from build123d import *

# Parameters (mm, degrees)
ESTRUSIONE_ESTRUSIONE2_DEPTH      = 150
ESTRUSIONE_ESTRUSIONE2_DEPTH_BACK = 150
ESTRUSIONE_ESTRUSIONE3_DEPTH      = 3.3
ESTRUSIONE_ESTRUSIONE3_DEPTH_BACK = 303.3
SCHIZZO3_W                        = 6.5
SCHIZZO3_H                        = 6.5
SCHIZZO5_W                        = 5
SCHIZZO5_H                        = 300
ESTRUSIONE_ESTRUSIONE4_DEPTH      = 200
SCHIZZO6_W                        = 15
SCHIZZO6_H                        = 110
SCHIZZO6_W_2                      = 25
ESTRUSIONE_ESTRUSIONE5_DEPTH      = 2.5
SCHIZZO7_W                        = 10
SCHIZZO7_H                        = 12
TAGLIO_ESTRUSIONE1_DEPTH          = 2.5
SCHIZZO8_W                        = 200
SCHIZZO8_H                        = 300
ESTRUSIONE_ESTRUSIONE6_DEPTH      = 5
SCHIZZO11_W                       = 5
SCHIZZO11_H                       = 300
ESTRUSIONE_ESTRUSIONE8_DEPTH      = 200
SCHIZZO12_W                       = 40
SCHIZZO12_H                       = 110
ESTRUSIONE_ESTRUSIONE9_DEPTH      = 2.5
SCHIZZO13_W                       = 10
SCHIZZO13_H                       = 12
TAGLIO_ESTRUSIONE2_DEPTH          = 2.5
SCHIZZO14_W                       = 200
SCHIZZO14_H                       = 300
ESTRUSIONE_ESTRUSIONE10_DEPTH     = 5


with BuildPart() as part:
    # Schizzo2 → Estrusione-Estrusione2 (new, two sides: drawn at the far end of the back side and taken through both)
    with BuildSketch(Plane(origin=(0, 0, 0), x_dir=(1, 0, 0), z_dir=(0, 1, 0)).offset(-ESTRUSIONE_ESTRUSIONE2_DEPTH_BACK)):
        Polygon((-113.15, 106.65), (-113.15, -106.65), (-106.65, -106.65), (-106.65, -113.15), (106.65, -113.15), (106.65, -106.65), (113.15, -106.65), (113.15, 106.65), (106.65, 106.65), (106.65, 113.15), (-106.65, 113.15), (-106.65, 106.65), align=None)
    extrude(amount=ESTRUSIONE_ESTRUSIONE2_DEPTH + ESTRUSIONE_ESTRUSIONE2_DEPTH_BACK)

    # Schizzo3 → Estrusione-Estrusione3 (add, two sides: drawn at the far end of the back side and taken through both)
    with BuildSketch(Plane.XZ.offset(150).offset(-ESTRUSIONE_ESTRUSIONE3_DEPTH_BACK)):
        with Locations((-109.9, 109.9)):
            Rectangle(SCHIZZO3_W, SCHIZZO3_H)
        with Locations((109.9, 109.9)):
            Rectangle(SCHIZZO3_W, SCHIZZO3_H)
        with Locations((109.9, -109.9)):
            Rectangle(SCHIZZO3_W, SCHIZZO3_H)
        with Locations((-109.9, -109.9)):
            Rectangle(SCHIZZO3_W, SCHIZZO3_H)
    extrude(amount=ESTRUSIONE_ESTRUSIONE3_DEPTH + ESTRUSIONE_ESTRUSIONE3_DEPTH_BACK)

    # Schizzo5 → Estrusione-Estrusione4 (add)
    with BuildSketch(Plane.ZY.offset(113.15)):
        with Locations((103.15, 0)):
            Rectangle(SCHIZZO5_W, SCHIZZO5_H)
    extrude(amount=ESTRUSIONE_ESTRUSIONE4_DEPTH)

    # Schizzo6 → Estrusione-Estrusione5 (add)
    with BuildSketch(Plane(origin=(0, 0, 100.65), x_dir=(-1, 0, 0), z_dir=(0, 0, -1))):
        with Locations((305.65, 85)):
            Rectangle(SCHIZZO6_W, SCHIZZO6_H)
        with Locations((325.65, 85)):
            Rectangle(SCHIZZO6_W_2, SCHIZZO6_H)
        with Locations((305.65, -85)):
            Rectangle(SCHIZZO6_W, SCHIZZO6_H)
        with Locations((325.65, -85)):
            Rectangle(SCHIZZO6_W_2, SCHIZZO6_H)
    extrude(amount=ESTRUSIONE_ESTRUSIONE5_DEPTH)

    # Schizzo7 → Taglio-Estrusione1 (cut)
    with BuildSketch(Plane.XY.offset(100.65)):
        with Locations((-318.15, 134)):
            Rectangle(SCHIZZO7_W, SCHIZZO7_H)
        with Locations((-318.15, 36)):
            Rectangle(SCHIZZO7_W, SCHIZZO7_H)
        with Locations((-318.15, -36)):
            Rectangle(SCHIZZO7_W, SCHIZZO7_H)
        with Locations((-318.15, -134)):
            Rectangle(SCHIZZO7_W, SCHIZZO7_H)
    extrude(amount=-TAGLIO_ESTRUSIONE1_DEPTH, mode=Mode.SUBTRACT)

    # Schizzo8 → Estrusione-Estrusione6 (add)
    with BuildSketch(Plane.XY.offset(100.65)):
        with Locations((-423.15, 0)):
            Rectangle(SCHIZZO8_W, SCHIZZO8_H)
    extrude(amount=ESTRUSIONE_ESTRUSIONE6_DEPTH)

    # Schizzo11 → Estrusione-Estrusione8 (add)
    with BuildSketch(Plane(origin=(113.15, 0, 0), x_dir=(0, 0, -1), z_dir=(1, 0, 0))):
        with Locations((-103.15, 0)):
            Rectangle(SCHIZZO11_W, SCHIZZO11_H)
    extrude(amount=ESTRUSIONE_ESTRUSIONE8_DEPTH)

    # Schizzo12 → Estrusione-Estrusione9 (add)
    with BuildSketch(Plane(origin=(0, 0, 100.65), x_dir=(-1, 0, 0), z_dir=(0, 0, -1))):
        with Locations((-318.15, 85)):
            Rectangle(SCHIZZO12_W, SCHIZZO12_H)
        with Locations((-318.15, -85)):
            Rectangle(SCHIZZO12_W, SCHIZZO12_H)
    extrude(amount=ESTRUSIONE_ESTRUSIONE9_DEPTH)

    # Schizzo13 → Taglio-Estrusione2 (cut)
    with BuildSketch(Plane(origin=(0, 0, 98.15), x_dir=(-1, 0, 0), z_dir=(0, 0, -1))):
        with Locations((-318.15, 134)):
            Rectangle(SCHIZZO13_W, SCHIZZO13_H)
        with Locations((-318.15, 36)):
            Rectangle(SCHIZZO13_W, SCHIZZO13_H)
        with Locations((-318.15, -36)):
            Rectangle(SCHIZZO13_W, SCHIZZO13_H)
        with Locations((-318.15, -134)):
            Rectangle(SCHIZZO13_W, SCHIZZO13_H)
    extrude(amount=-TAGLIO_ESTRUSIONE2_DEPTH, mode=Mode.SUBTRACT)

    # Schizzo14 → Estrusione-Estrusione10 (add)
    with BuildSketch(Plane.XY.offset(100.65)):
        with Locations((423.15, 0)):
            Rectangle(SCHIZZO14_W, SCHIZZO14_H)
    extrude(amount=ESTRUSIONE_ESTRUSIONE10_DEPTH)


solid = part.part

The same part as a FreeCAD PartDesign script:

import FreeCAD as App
import Part
import Sketcher

V = App.Vector
Q = App.Units.Quantity

doc = App.newDocument("Part")
params = doc.addObject("Spreadsheet::Sheet", "Params")
for row, (alias, value) in enumerate([
    ("sketch1_width", "6.5 mm"),
    ("sketch1_width2", "213.3 mm"),
    ("pad1_length", "150 mm"),
    ("pad1_length2", "150 mm"),
    ("sketch2_width", "6.5 mm"),
    ("pad2_length", "3.3 mm"),
    ("pad2_length2", "303.3 mm"),
    ("sketch3_width", "300 mm"),
    ("sketch3_height", "5 mm"),
    ("pad3_length", "200 mm"),
    ("sketch4_width", "40 mm"),
    ("sketch4_height", "110 mm"),
    ("pad4_length", "2.5 mm"),
    ("sketch5_width", "10 mm"),
    ("sketch5_height", "12 mm"),
    ("pocket1_length", "2.5 mm"),
    ("sketch6_width", "200 mm"),
    ("sketch6_height", "300 mm"),
    ("pad5_length", "5 mm"),
    ("sketch7_width", "300 mm"),
    ("sketch7_height", "5 mm"),
    ("pad6_length", "200 mm"),
    ("sketch8_width", "40 mm"),
    ("sketch8_height", "110 mm"),
    ("pad7_length", "2.5 mm"),
    ("sketch9_width", "10 mm"),
    ("sketch9_height", "12 mm"),
    ("pocket2_length", "2.5 mm"),
    ("sketch10_width", "200 mm"),
    ("sketch10_height", "300 mm"),
    ("pad8_length", "5 mm"),
], start=1):
    params.set(f"A{row}", alias)
    params.set(f"B{row}", "=" + value)
    params.setAlias(f"B{row}", alias)

body = doc.addObject("PartDesign::Body", "Body")

sketch1 = doc.addObject("Sketcher::SketchObject", "Sketch")
body.addObject(sketch1)
sketch1.AttachmentSupport = (doc.XZ_Plane, [""])
sketch1.MapMode = "FlatFace"
sketch1.addGeometry([
    Part.LineSegment(V(-113.15, -106.65, 0), V(-113.15, 106.65, 0)),
    Part.LineSegment(V(-113.15, 106.65, 0), V(-106.65, 106.65, 0)),
    Part.LineSegment(V(-106.65, 106.65, 0), V(-106.65, 113.15, 0)),
    Part.LineSegment(V(-106.65, 113.15, 0), V(106.65, 113.15, 0)),
    Part.LineSegment(V(106.65, 113.15, 0), V(106.65, 106.65, 0)),
    Part.LineSegment(V(106.65, 106.65, 0), V(113.15, 106.65, 0)),
    Part.LineSegment(V(113.15, 106.65, 0), V(113.15, -106.65, 0)),
    Part.LineSegment(V(113.15, -106.65, 0), V(106.65, -106.65, 0)),
    Part.LineSegment(V(106.65, -106.65, 0), V(106.65, -113.15, 0)),
    Part.LineSegment(V(106.65, -113.15, 0), V(-106.65, -113.15, 0)),
    Part.LineSegment(V(-106.65, -113.15, 0), V(-106.65, -106.65, 0)),
    Part.LineSegment(V(-106.65, -106.65, 0), V(-113.15, -106.65, 0)),
], False)
sketch1.addConstraint([
    Sketcher.Constraint("Coincident", 0, 2, 1, 1),
    Sketcher.Constraint("Coincident", 1, 2, 2, 1),
    Sketcher.Constraint("Coincident", 2, 2, 3, 1),
    Sketcher.Constraint("Coincident", 3, 2, 4, 1),
    Sketcher.Constraint("Coincident", 4, 2, 5, 1),
    Sketcher.Constraint("Coincident", 5, 2, 6, 1),
    Sketcher.Constraint("Coincident", 6, 2, 7, 1),
    Sketcher.Constraint("Coincident", 7, 2, 8, 1),
    Sketcher.Constraint("Coincident", 8, 2, 9, 1),
    Sketcher.Constraint("Coincident", 9, 2, 10, 1),
    Sketcher.Constraint("Coincident", 10, 2, 11, 1),
    Sketcher.Constraint("Coincident", 11, 2, 0, 1),
    Sketcher.Constraint("Vertical", 0),
    Sketcher.Constraint("Horizontal", 1),
    Sketcher.Constraint("Vertical", 2),
    Sketcher.Constraint("Horizontal", 3),
    Sketcher.Constraint("Vertical", 4),
    Sketcher.Constraint("Horizontal", 5),
    Sketcher.Constraint("Vertical", 6),
    Sketcher.Constraint("Horizontal", 7),
    Sketcher.Constraint("Vertical", 8),
    Sketcher.Constraint("Horizontal", 9),
    Sketcher.Constraint("Vertical", 10),
    Sketcher.Constraint("Horizontal", 11),
    Sketcher.Constraint("Symmetric", 0, 2, 6, 2, -1, 1),
    Sketcher.Constraint("Symmetric", 2, 2, 8, 2, -1, 1),
    Sketcher.Constraint("Symmetric", 4, 2, 10, 2, -1, 1),
    Sketcher.Constraint("Symmetric", 1, 2, 4, 2, -2),
    Sketcher.Constraint("Equal", 9, 0),
    Sketcher.Constraint("Equal", 11, 2),
    Sketcher.Constraint("DistanceX", 1, 1, 1, 2, Q("6.5 mm")),
    Sketcher.Constraint("DistanceX", 3, 1, 3, 2, Q("213.3 mm")),
])
sketch1.setExpression("Constraints[30]", "Params.sketch1_width")
sketch1.setExpression("Constraints[31]", "Params.sketch1_width2")
pad1 = doc.addObject("PartDesign::Pad", "Pad")
body.addObject(pad1)
pad1.Profile = sketch1
pad1.Type = "TwoLengths"
pad1.setExpression("Length", "Params.pad1_length")
pad1.setExpression("Length2", "Params.pad1_length2")
pad1.Reversed = True

sketch2 = doc.addObject("Sketcher::SketchObject", "Sketch001")
body.addObject(sketch2)
sketch2.AttachmentSupport = (doc.XZ_Plane, [""])
sketch2.MapMode = "FlatFace"
sketch2.AttachmentOffset = App.Placement(V(0, 0, 150), App.Rotation())
sketch2.addGeometry([
    Part.LineSegment(V(-113.15, 113.15, 0), V(-113.15, 106.65, 0)),
    Part.LineSegment(V(-113.15, 106.65, 0), V(-106.65, 106.65, 0)),
    Part.LineSegment(V(-106.65, 106.65, 0), V(-106.65, 113.15, 0)),
    Part.LineSegment(V(-106.65, 113.15, 0), V(-113.15, 113.15, 0)),
    Part.LineSegment(V(106.65, 113.15, 0), V(106.65, 106.65, 0)),
    Part.LineSegment(V(106.65, 106.65, 0), V(113.15, 106.65, 0)),
    Part.LineSegment(V(113.15, 106.65, 0), V(113.15, 113.15, 0)),
    Part.LineSegment(V(113.15, 113.15, 0), V(106.65, 113.15, 0)),
    Part.LineSegment(V(106.65, -106.65, 0), V(106.65, -113.15, 0)),
    Part.LineSegment(V(106.65, -113.15, 0), V(113.15, -113.15, 0)),
    Part.LineSegment(V(113.15, -113.15, 0), V(113.15, -106.65, 0)),
    Part.LineSegment(V(113.15, -106.65, 0), V(106.65, -106.65, 0)),
    Part.LineSegment(V(-113.15, -106.65, 0), V(-113.15, -113.15, 0)),
    Part.LineSegment(V(-113.15, -113.15, 0), V(-106.65, -113.15, 0)),
    Part.LineSegment(V(-106.65, -113.15, 0), V(-106.65, -106.65, 0)),
    Part.LineSegment(V(-106.65, -106.65, 0), V(-113.15, -106.65, 0)),
], False)
sketch2.addConstraint([
    Sketcher.Constraint("Coincident", 0, 2, 1, 1),
    Sketcher.Constraint("Coincident", 1, 2, 2, 1),
    Sketcher.Constraint("Coincident", 2, 2, 3, 1),
    Sketcher.Constraint("Coincident", 3, 2, 0, 1),
    Sketcher.Constraint("Coincident", 4, 2, 5, 1),
    Sketcher.Constraint("Coincident", 5, 2, 6, 1),
    Sketcher.Constraint("Coincident", 6, 2, 7, 1),
    Sketcher.Constraint("Coincident", 7, 2, 4, 1),
    Sketcher.Constraint("Coincident", 8, 2, 9, 1),
    Sketcher.Constraint("Coincident", 9, 2, 10, 1),
    Sketcher.Constraint("Coincident", 10, 2, 11, 1),
    Sketcher.Constraint("Coincident", 11, 2, 8, 1),
    Sketcher.Constraint("Coincident", 12, 2, 13, 1),
    Sketcher.Constraint("Coincident", 13, 2, 14, 1),
    Sketcher.Constraint("Coincident", 14, 2, 15, 1),
    Sketcher.Constraint("Coincident", 15, 2, 12, 1),
    Sketcher.Constraint("Vertical", 0),
    Sketcher.Constraint("Horizontal", 1),
    Sketcher.Constraint("Vertical", 2),
    Sketcher.Constraint("Horizontal", 3),
    Sketcher.Constraint("Vertical", 4),
    Sketcher.Constraint("Horizontal", 5),
    Sketcher.Constraint("Vertical", 6),
    Sketcher.Constraint("Horizontal", 7),
    Sketcher.Constraint("Vertical", 8),
    Sketcher.Constraint("Horizontal", 9),
    Sketcher.Constraint("Vertical", 10),
    Sketcher.Constraint("Horizontal", 11),
    Sketcher.Constraint("Vertical", 12),
    Sketcher.Constraint("Horizontal", 13),
    Sketcher.Constraint("Vertical", 14),
    Sketcher.Constraint("Horizontal", 15),
    Sketcher.Constraint("Symmetric", 2, 2, 8, 2, -1, 1),
    Sketcher.Constraint("Symmetric", 0, 2, 10, 2, -1, 1),
    Sketcher.Constraint("Symmetric", 6, 2, 12, 2, -1, 1),
    Sketcher.Constraint("Symmetric", 4, 2, 14, 2, -1, 1),
    Sketcher.Constraint("Symmetric", 1, 2, 4, 2, -2),
    Sketcher.Constraint("Symmetric", 3, 2, 6, 2, -2),
    Sketcher.Constraint("Equal", 15, 0),
    Sketcher.Constraint("DistanceX", 1, 1, 1, 2, Q("6.5 mm")),
    Sketcher.Constraint("DistanceX", 1, 2, 4, 2, Q("213.3 mm")),
    Sketcher.Constraint("DistanceY", 8, 2, 4, 2, Q("219.8 mm")),
])
sketch2.setExpression("Constraints[39]", "Params.sketch2_width")
pad2 = doc.addObject("PartDesign::Pad", "Pad001")
body.addObject(pad2)
pad2.Profile = sketch2
pad2.Type = "TwoLengths"
pad2.setExpression("Length", "Params.pad2_length")
pad2.setExpression("Length2", "Params.pad2_length2")

sketch3 = doc.addObject("Sketcher::SketchObject", "Sketch002")
body.addObject(sketch3)
sketch3.AttachmentSupport = (doc.YZ_Plane, [""])
sketch3.MapMode = "FlatFace"
sketch3.AttachmentOffset = App.Placement(V(0, 0, -113.15), App.Rotation())
sketch3.addGeometry([
    Part.LineSegment(V(150, 100.65, 0), V(-150, 100.65, 0)),
    Part.LineSegment(V(-150, 100.65, 0), V(-150, 105.65, 0)),
    Part.LineSegment(V(-150, 105.65, 0), V(150, 105.65, 0)),
    Part.LineSegment(V(150, 105.65, 0), V(150, 100.65, 0)),
], False)
sketch3.addConstraint([
    Sketcher.Constraint("Coincident", 0, 2, 1, 1),
    Sketcher.Constraint("Coincident", 1, 2, 2, 1),
    Sketcher.Constraint("Coincident", 2, 2, 3, 1),
    Sketcher.Constraint("Coincident", 3, 2, 0, 1),
    Sketcher.Constraint("Horizontal", 0),
    Sketcher.Constraint("Vertical", 1),
    Sketcher.Constraint("Horizontal", 2),
    Sketcher.Constraint("Vertical", 3),
    Sketcher.Constraint("DistanceX", 0, 2, 0, 1, Q("300 mm")),
    Sketcher.Constraint("DistanceY", 1, 1, 1, 2, Q("5 mm")),
    Sketcher.Constraint("DistanceX", 0, 2, -1, 1, Q("150 mm")),
    Sketcher.Constraint("DistanceY", -1, 1, 0, 2, Q("100.65 mm")),
])
sketch3.setExpression("Constraints[8]", "Params.sketch3_width")
sketch3.setExpression("Constraints[9]", "Params.sketch3_height")
pad3 = doc.addObject("PartDesign::Pad", "Pad002")
body.addObject(pad3)
pad3.Profile = sketch3
pad3.setExpression("Length", "Params.pad3_length")
pad3.Reversed = True

sketch4 = doc.addObject("Sketcher::SketchObject", "Sketch003")
body.addObject(sketch4)
sketch4.AttachmentSupport = (doc.XY_Plane, [""])
sketch4.MapMode = "FlatFace"
sketch4.AttachmentOffset = App.Placement(V(0, 0, 100.65), App.Rotation())
sketch4.addGeometry([
    Part.LineSegment(V(-298.15, 140, 0), V(-298.15, 30, 0)),
    Part.LineSegment(V(-298.15, 30, 0), V(-338.15, 30, 0)),
    Part.LineSegment(V(-338.15, 30, 0), V(-338.15, 140, 0)),
    Part.LineSegment(V(-338.15, 140, 0), V(-298.15, 140, 0)),
    Part.LineSegment(V(-298.15, -30, 0), V(-298.15, -140, 0)),
    Part.LineSegment(V(-298.15, -140, 0), V(-338.15, -140, 0)),
    Part.LineSegment(V(-338.15, -140, 0), V(-338.15, -30, 0)),
    Part.LineSegment(V(-338.15, -30, 0), V(-298.15, -30, 0)),
], False)
sketch4.addConstraint([
    Sketcher.Constraint("Coincident", 0, 2, 1, 1),
    Sketcher.Constraint("Coincident", 1, 2, 2, 1),
    Sketcher.Constraint("Coincident", 2, 2, 3, 1),
    Sketcher.Constraint("Coincident", 3, 2, 0, 1),
    Sketcher.Constraint("Coincident", 4, 2, 5, 1),
    Sketcher.Constraint("Coincident", 5, 2, 6, 1),
    Sketcher.Constraint("Coincident", 6, 2, 7, 1),
    Sketcher.Constraint("Coincident", 7, 2, 4, 1),
    Sketcher.Constraint("Vertical", 0),
    Sketcher.Constraint("Horizontal", 1),
    Sketcher.Constraint("Vertical", 2),
    Sketcher.Constraint("Horizontal", 3),
    Sketcher.Constraint("Vertical", 4),
    Sketcher.Constraint("Horizontal", 5),
    Sketcher.Constraint("Vertical", 6),
    Sketcher.Constraint("Horizontal", 7),
    Sketcher.Constraint("Symmetric", 3, 2, 4, 2, -1),
    Sketcher.Constraint("Symmetric", 1, 2, 6, 2, -1),
    Sketcher.Constraint("DistanceX", 1, 2, 1, 1, Q("40 mm")),
    Sketcher.Constraint("DistanceY", 0, 2, 0, 1, Q("110 mm")),
    Sketcher.Constraint("DistanceY", -1, 1, 0, 2, Q("30 mm")),
    Sketcher.Constraint("DistanceX", 0, 2, -1, 1, Q("298.15 mm")),
])
sketch4.setExpression("Constraints[18]", "Params.sketch4_width")
sketch4.setExpression("Constraints[19]", "Params.sketch4_height")
pad4 = doc.addObject("PartDesign::Pad", "Pad003")
body.addObject(pad4)
pad4.Profile = sketch4
pad4.setExpression("Length", "Params.pad4_length")
pad4.Reversed = True

sketch5 = doc.addObject("Sketcher::SketchObject", "Sketch004")
body.addObject(sketch5)
sketch5.AttachmentSupport = (doc.XY_Plane, [""])
sketch5.MapMode = "FlatFace"
sketch5.AttachmentOffset = App.Placement(V(0, 0, 100.65), App.Rotation())
sketch5.addGeometry([
    Part.LineSegment(V(-323.15, 140, 0), V(-323.15, 128, 0)),
    Part.LineSegment(V(-323.15, 128, 0), V(-313.15, 128, 0)),
    Part.LineSegment(V(-313.15, 128, 0), V(-313.15, 140, 0)),
    Part.LineSegment(V(-313.15, 140, 0), V(-323.15, 140, 0)),
    Part.LineSegment(V(-323.15, 42, 0), V(-323.15, 30, 0)),
    Part.LineSegment(V(-323.15, 30, 0), V(-313.15, 30, 0)),
    Part.LineSegment(V(-313.15, 30, 0), V(-313.15, 42, 0)),
    Part.LineSegment(V(-313.15, 42, 0), V(-323.15, 42, 0)),
    Part.LineSegment(V(-323.15, -30, 0), V(-323.15, -42, 0)),
    Part.LineSegment(V(-323.15, -42, 0), V(-313.15, -42, 0)),
    Part.LineSegment(V(-313.15, -42, 0), V(-313.15, -30, 0)),
    Part.LineSegment(V(-313.15, -30, 0), V(-323.15, -30, 0)),
    Part.LineSegment(V(-323.15, -128, 0), V(-323.15, -140, 0)),
    Part.LineSegment(V(-323.15, -140, 0), V(-313.15, -140, 0)),
    Part.LineSegment(V(-313.15, -140, 0), V(-313.15, -128, 0)),
    Part.LineSegment(V(-313.15, -128, 0), V(-323.15, -128, 0)),
], False)
sketch5.addConstraint([
    Sketcher.Constraint("Coincident", 0, 2, 1, 1),
    Sketcher.Constraint("Coincident", 1, 2, 2, 1),
    Sketcher.Constraint("Coincident", 2, 2, 3, 1),
    Sketcher.Constraint("Coincident", 3, 2, 0, 1),
    Sketcher.Constraint("Coincident", 4, 2, 5, 1),
    Sketcher.Constraint("Coincident", 5, 2, 6, 1),
    Sketcher.Constraint("Coincident", 6, 2, 7, 1),
    Sketcher.Constraint("Coincident", 7, 2, 4, 1),
    Sketcher.Constraint("Coincident", 8, 2, 9, 1),
    Sketcher.Constraint("Coincident", 9, 2, 10, 1),
    Sketcher.Constraint("Coincident", 10, 2, 11, 1),
    Sketcher.Constraint("Coincident", 11, 2, 8, 1),
    Sketcher.Constraint("Coincident", 12, 2, 13, 1),
    Sketcher.Constraint("Coincident", 13, 2, 14, 1),
    Sketcher.Constraint("Coincident", 14, 2, 15, 1),
    Sketcher.Constraint("Coincident", 15, 2, 12, 1),
    Sketcher.Constraint("Vertical", 0),
    Sketcher.Constraint("Horizontal", 1),
    Sketcher.Constraint("Vertical", 2),
    Sketcher.Constraint("Horizontal", 3),
    Sketcher.Constraint("Vertical", 4),
    Sketcher.Constraint("Horizontal", 5),
    Sketcher.Constraint("Vertical", 6),
    Sketcher.Constraint("Horizontal", 7),
    Sketcher.Constraint("Vertical", 8),
    Sketcher.Constraint("Horizontal", 9),
    Sketcher.Constraint("Vertical", 10),
    Sketcher.Constraint("Horizontal", 11),
    Sketcher.Constraint("Vertical", 12),
    Sketcher.Constraint("Horizontal", 13),
    Sketcher.Constraint("Vertical", 14),
    Sketcher.Constraint("Horizontal", 15),
    Sketcher.Constraint("Symmetric", 7, 2, 8, 2, -1),
    Sketcher.Constraint("Symmetric", 5, 2, 10, 2, -1),
    Sketcher.Constraint("Symmetric", 3, 2, 12, 2, -1),
    Sketcher.Constraint("Symmetric", 1, 2, 14, 2, -1),
    Sketcher.Constraint("Vertical", 3, 2, 4, 2),
    Sketcher.Constraint("Vertical", 2, 2, 5, 2),
    Sketcher.Constraint("Equal", 2, 4),
    Sketcher.Constraint("DistanceX", 1, 1, 1, 2, Q("10 mm")),
    Sketcher.Constraint("DistanceY", 0, 2, 0, 1, Q("12 mm")),
    Sketcher.Constraint("DistanceY", -1, 1, 0, 2, Q("128 mm")),
    Sketcher.Constraint("DistanceY", -1, 1, 4, 2, Q("30 mm")),
    Sketcher.Constraint("DistanceX", 0, 2, -1, 1, Q("323.15 mm")),
])
sketch5.setExpression("Constraints[39]", "Params.sketch5_width")
sketch5.setExpression("Constraints[40]", "Params.sketch5_height")
pocket1 = doc.addObject("PartDesign::Pocket", "Pocket")
body.addObject(pocket1)
pocket1.Profile = sketch5
pocket1.setExpression("Length", "Params.pocket1_length")

sketch6 = doc.addObject("Sketcher::SketchObject", "Sketch005")
body.addObject(sketch6)
sketch6.AttachmentSupport = (doc.XY_Plane, [""])
sketch6.MapMode = "FlatFace"
sketch6.AttachmentOffset = App.Placement(V(0, 0, 100.65), App.Rotation())
sketch6.addGeometry([
    Part.LineSegment(V(-523.15, 150, 0), V(-523.15, -150, 0)),
    Part.LineSegment(V(-523.15, -150, 0), V(-323.15, -150, 0)),
    Part.LineSegment(V(-323.15, -150, 0), V(-323.15, 150, 0)),
    Part.LineSegment(V(-323.15, 150, 0), V(-523.15, 150, 0)),
], False)
sketch6.addConstraint([
    Sketcher.Constraint("Coincident", 0, 2, 1, 1),
    Sketcher.Constraint("Coincident", 1, 2, 2, 1),
    Sketcher.Constraint("Coincident", 2, 2, 3, 1),
    Sketcher.Constraint("Coincident", 3, 2, 0, 1),
    Sketcher.Constraint("Vertical", 0),
    Sketcher.Constraint("Horizontal", 1),
    Sketcher.Constraint("Vertical", 2),
    Sketcher.Constraint("Horizontal", 3),
    Sketcher.Constraint("DistanceX", 1, 1, 1, 2, Q("200 mm")),
    Sketcher.Constraint("DistanceY", 0, 2, 0, 1, Q("300 mm")),
    Sketcher.Constraint("DistanceY", 0, 2, -1, 1, Q("150 mm")),
    Sketcher.Constraint("DistanceX", 0, 2, -1, 1, Q("523.15 mm")),
])
sketch6.setExpression("Constraints[8]", "Params.sketch6_width")
sketch6.setExpression("Constraints[9]", "Params.sketch6_height")
pad5 = doc.addObject("PartDesign::Pad", "Pad004")
body.addObject(pad5)
pad5.Profile = sketch6
pad5.setExpression("Length", "Params.pad5_length")

sketch7 = doc.addObject("Sketcher::SketchObject", "Sketch006")
body.addObject(sketch7)
sketch7.AttachmentSupport = (doc.YZ_Plane, [""])
sketch7.MapMode = "FlatFace"
sketch7.AttachmentOffset = App.Placement(V(0, 0, 113.15), App.Rotation())
sketch7.addGeometry([
    Part.LineSegment(V(150, 105.65, 0), V(-150, 105.65, 0)),
    Part.LineSegment(V(-150, 105.65, 0), V(-150, 100.65, 0)),
    Part.LineSegment(V(-150, 100.65, 0), V(150, 100.65, 0)),
    Part.LineSegment(V(150, 100.65, 0), V(150, 105.65, 0)),
], False)
sketch7.addConstraint([
    Sketcher.Constraint("Coincident", 0, 2, 1, 1),
    Sketcher.Constraint("Coincident", 1, 2, 2, 1),
    Sketcher.Constraint("Coincident", 2, 2, 3, 1),
    Sketcher.Constraint("Coincident", 3, 2, 0, 1),
    Sketcher.Constraint("Horizontal", 0),
    Sketcher.Constraint("Vertical", 1),
    Sketcher.Constraint("Horizontal", 2),
    Sketcher.Constraint("Vertical", 3),
    Sketcher.Constraint("DistanceX", 0, 2, 0, 1, Q("300 mm")),
    Sketcher.Constraint("DistanceY", 1, 2, 1, 1, Q("5 mm")),
    Sketcher.Constraint("DistanceX", 0, 2, -1, 1, Q("150 mm")),
    Sketcher.Constraint("DistanceY", -1, 1, 0, 2, Q("105.65 mm")),
])
sketch7.setExpression("Constraints[8]", "Params.sketch7_width")
sketch7.setExpression("Constraints[9]", "Params.sketch7_height")
pad6 = doc.addObject("PartDesign::Pad", "Pad005")
body.addObject(pad6)
pad6.Profile = sketch7
pad6.setExpression("Length", "Params.pad6_length")

sketch8 = doc.addObject("Sketcher::SketchObject", "Sketch007")
body.addObject(sketch8)
sketch8.AttachmentSupport = (doc.XY_Plane, [""])
sketch8.MapMode = "FlatFace"
sketch8.AttachmentOffset = App.Placement(V(0, 0, 100.65), App.Rotation())
sketch8.addGeometry([
    Part.LineSegment(V(338.15, 140, 0), V(338.15, 30, 0)),
    Part.LineSegment(V(338.15, 30, 0), V(298.15, 30, 0)),
    Part.LineSegment(V(298.15, 30, 0), V(298.15, 140, 0)),
    Part.LineSegment(V(298.15, 140, 0), V(338.15, 140, 0)),
    Part.LineSegment(V(338.15, -30, 0), V(338.15, -140, 0)),
    Part.LineSegment(V(338.15, -140, 0), V(298.15, -140, 0)),
    Part.LineSegment(V(298.15, -140, 0), V(298.15, -30, 0)),
    Part.LineSegment(V(298.15, -30, 0), V(338.15, -30, 0)),
], False)
sketch8.addConstraint([
    Sketcher.Constraint("Coincident", 0, 2, 1, 1),
    Sketcher.Constraint("Coincident", 1, 2, 2, 1),
    Sketcher.Constraint("Coincident", 2, 2, 3, 1),
    Sketcher.Constraint("Coincident", 3, 2, 0, 1),
    Sketcher.Constraint("Coincident", 4, 2, 5, 1),
    Sketcher.Constraint("Coincident", 5, 2, 6, 1),
    Sketcher.Constraint("Coincident", 6, 2, 7, 1),
    Sketcher.Constraint("Coincident", 7, 2, 4, 1),
    Sketcher.Constraint("Vertical", 0),
    Sketcher.Constraint("Horizontal", 1),
    Sketcher.Constraint("Vertical", 2),
    Sketcher.Constraint("Horizontal", 3),
    Sketcher.Constraint("Vertical", 4),
    Sketcher.Constraint("Horizontal", 5),
    Sketcher.Constraint("Vertical", 6),
    Sketcher.Constraint("Horizontal", 7),
    Sketcher.Constraint("Symmetric", 3, 2, 4, 2, -1),
    Sketcher.Constraint("Symmetric", 1, 2, 6, 2, -1),
    Sketcher.Constraint("DistanceX", 1, 2, 1, 1, Q("40 mm")),
    Sketcher.Constraint("DistanceY", 0, 2, 0, 1, Q("110 mm")),
    Sketcher.Constraint("DistanceY", -1, 1, 0, 2, Q("30 mm")),
    Sketcher.Constraint("DistanceX", -1, 1, 0, 2, Q("338.15 mm")),
])
sketch8.setExpression("Constraints[18]", "Params.sketch8_width")
sketch8.setExpression("Constraints[19]", "Params.sketch8_height")
pad7 = doc.addObject("PartDesign::Pad", "Pad006")
body.addObject(pad7)
pad7.Profile = sketch8
pad7.setExpression("Length", "Params.pad7_length")
pad7.Reversed = True

sketch9 = doc.addObject("Sketcher::SketchObject", "Sketch008")
body.addObject(sketch9)
sketch9.AttachmentSupport = (doc.XY_Plane, [""])
sketch9.MapMode = "FlatFace"
sketch9.AttachmentOffset = App.Placement(V(0, 0, 98.15), App.Rotation())
sketch9.addGeometry([
    Part.LineSegment(V(323.15, 140, 0), V(323.15, 128, 0)),
    Part.LineSegment(V(323.15, 128, 0), V(313.15, 128, 0)),
    Part.LineSegment(V(313.15, 128, 0), V(313.15, 140, 0)),
    Part.LineSegment(V(313.15, 140, 0), V(323.15, 140, 0)),
    Part.LineSegment(V(323.15, 42, 0), V(323.15, 30, 0)),
    Part.LineSegment(V(323.15, 30, 0), V(313.15, 30, 0)),
    Part.LineSegment(V(313.15, 30, 0), V(313.15, 42, 0)),
    Part.LineSegment(V(313.15, 42, 0), V(323.15, 42, 0)),
    Part.LineSegment(V(323.15, -30, 0), V(323.15, -42, 0)),
    Part.LineSegment(V(323.15, -42, 0), V(313.15, -42, 0)),
    Part.LineSegment(V(313.15, -42, 0), V(313.15, -30, 0)),
    Part.LineSegment(V(313.15, -30, 0), V(323.15, -30, 0)),
    Part.LineSegment(V(323.15, -128, 0), V(323.15, -140, 0)),
    Part.LineSegment(V(323.15, -140, 0), V(313.15, -140, 0)),
    Part.LineSegment(V(313.15, -140, 0), V(313.15, -128, 0)),
    Part.LineSegment(V(313.15, -128, 0), V(323.15, -128, 0)),
], False)
sketch9.addConstraint([
    Sketcher.Constraint("Coincident", 0, 2, 1, 1),
    Sketcher.Constraint("Coincident", 1, 2, 2, 1),
    Sketcher.Constraint("Coincident", 2, 2, 3, 1),
    Sketcher.Constraint("Coincident", 3, 2, 0, 1),
    Sketcher.Constraint("Coincident", 4, 2, 5, 1),
    Sketcher.Constraint("Coincident", 5, 2, 6, 1),
    Sketcher.Constraint("Coincident", 6, 2, 7, 1),
    Sketcher.Constraint("Coincident", 7, 2, 4, 1),
    Sketcher.Constraint("Coincident", 8, 2, 9, 1),
    Sketcher.Constraint("Coincident", 9, 2, 10, 1),
    Sketcher.Constraint("Coincident", 10, 2, 11, 1),
    Sketcher.Constraint("Coincident", 11, 2, 8, 1),
    Sketcher.Constraint("Coincident", 12, 2, 13, 1),
    Sketcher.Constraint("Coincident", 13, 2, 14, 1),
    Sketcher.Constraint("Coincident", 14, 2, 15, 1),
    Sketcher.Constraint("Coincident", 15, 2, 12, 1),
    Sketcher.Constraint("Vertical", 0),
    Sketcher.Constraint("Horizontal", 1),
    Sketcher.Constraint("Vertical", 2),
    Sketcher.Constraint("Horizontal", 3),
    Sketcher.Constraint("Vertical", 4),
    Sketcher.Constraint("Horizontal", 5),
    Sketcher.Constraint("Vertical", 6),
    Sketcher.Constraint("Horizontal", 7),
    Sketcher.Constraint("Vertical", 8),
    Sketcher.Constraint("Horizontal", 9),
    Sketcher.Constraint("Vertical", 10),
    Sketcher.Constraint("Horizontal", 11),
    Sketcher.Constraint("Vertical", 12),
    Sketcher.Constraint("Horizontal", 13),
    Sketcher.Constraint("Vertical", 14),
    Sketcher.Constraint("Horizontal", 15),
    Sketcher.Constraint("Symmetric", 7, 2, 8, 2, -1),
    Sketcher.Constraint("Symmetric", 5, 2, 10, 2, -1),
    Sketcher.Constraint("Symmetric", 3, 2, 12, 2, -1),
    Sketcher.Constraint("Symmetric", 1, 2, 14, 2, -1),
    Sketcher.Constraint("Vertical", 3, 2, 4, 2),
    Sketcher.Constraint("Vertical", 2, 2, 5, 2),
    Sketcher.Constraint("Equal", 2, 4),
    Sketcher.Constraint("DistanceX", 1, 2, 1, 1, Q("10 mm")),
    Sketcher.Constraint("DistanceY", 0, 2, 0, 1, Q("12 mm")),
    Sketcher.Constraint("DistanceY", -1, 1, 0, 2, Q("128 mm")),
    Sketcher.Constraint("DistanceY", -1, 1, 4, 2, Q("30 mm")),
    Sketcher.Constraint("DistanceX", -1, 1, 0, 2, Q("323.15 mm")),
])
sketch9.setExpression("Constraints[39]", "Params.sketch9_width")
sketch9.setExpression("Constraints[40]", "Params.sketch9_height")
pocket2 = doc.addObject("PartDesign::Pocket", "Pocket001")
body.addObject(pocket2)
pocket2.Profile = sketch9
pocket2.setExpression("Length", "Params.pocket2_length")
pocket2.Reversed = True

sketch10 = doc.addObject("Sketcher::SketchObject", "Sketch009")
body.addObject(sketch10)
sketch10.AttachmentSupport = (doc.XY_Plane, [""])
sketch10.MapMode = "FlatFace"
sketch10.AttachmentOffset = App.Placement(V(0, 0, 100.65), App.Rotation())
sketch10.addGeometry([
    Part.LineSegment(V(323.15, 150, 0), V(323.15, -150, 0)),
    Part.LineSegment(V(323.15, -150, 0), V(523.15, -150, 0)),
    Part.LineSegment(V(523.15, -150, 0), V(523.15, 150, 0)),
    Part.LineSegment(V(523.15, 150, 0), V(323.15, 150, 0)),
], False)
sketch10.addConstraint([
    Sketcher.Constraint("Coincident", 0, 2, 1, 1),
    Sketcher.Constraint("Coincident", 1, 2, 2, 1),
    Sketcher.Constraint("Coincident", 2, 2, 3, 1),
    Sketcher.Constraint("Coincident", 3, 2, 0, 1),
    Sketcher.Constraint("Vertical", 0),
    Sketcher.Constraint("Horizontal", 1),
    Sketcher.Constraint("Vertical", 2),
    Sketcher.Constraint("Horizontal", 3),
    Sketcher.Constraint("DistanceX", 1, 1, 1, 2, Q("200 mm")),
    Sketcher.Constraint("DistanceY", 0, 2, 0, 1, Q("300 mm")),
    Sketcher.Constraint("DistanceY", 0, 2, -1, 1, Q("150 mm")),
    Sketcher.Constraint("DistanceX", -1, 1, 0, 2, Q("323.15 mm")),
])
sketch10.setExpression("Constraints[8]", "Params.sketch10_width")
sketch10.setExpression("Constraints[9]", "Params.sketch10_height")
pad8 = doc.addObject("PartDesign::Pad", "Pad007")
body.addObject(pad8)
pad8.Profile = sketch10
pad8.setExpression("Length", "Params.pad8_length")

doc.recompute()
